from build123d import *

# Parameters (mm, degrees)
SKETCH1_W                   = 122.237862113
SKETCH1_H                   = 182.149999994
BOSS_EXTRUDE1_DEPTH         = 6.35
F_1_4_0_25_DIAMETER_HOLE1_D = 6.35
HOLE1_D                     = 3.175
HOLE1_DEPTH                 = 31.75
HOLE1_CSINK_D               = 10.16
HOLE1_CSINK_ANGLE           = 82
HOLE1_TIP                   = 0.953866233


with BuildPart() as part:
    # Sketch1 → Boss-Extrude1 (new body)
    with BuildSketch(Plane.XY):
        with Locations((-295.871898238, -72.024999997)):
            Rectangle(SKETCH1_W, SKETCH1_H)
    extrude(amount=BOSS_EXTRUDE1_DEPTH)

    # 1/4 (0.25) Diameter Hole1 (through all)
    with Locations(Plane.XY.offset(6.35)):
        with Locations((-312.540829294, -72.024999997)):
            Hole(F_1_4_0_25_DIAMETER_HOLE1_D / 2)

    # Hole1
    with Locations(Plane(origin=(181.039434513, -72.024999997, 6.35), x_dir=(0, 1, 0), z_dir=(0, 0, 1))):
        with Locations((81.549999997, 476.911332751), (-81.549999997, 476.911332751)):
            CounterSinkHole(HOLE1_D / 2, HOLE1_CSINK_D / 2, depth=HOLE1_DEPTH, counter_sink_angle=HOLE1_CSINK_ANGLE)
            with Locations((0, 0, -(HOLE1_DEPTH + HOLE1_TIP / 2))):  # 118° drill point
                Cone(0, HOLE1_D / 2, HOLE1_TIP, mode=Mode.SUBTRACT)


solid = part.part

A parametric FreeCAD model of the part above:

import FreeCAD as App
import Part
import Sketcher
Q = App.Units.Quantity

doc = App.newDocument("Part")
params = doc.addObject("Spreadsheet::Sheet", "Params")
for row, (alias, value) in enumerate([
    ("pad1_length", "0.25 in"),
    ("sketch2_diameter", "0.25 in"),
    ("hole_diameter", "0.25 in"),
    ("sketch3_diameter", "0.125 in"),
    ("hole2_diameter", "0.125 in"),
    ("hole2_depth", "1.25 in"),
    ("hole2_csink_diameter", "0.4 in"),
], start=1):
    params.set(f"A{row}", alias)
    params.set(f"B{row}", "=" + value)
    params.setAlias(f"B{row}", alias)

body = doc.addObject("PartDesign::Body", "Body")

sketch1 = body.newObject("Sketcher::SketchObject", "Sketch")
sketch1.AttachmentSupport = (doc.getObject("XY_Plane"), [""])
sketch1.MapMode = "FlatFace"
sketch1.addGeometry(Part.LineSegment(App.Vector(-356.990829, 19.05, 0), App.Vector(-356.990829, -163.1, 0)), False)
sketch1.addGeometry(Part.LineSegment(App.Vector(-356.990829, -163.1, 0), App.Vector(-234.752967, -163.1, 0)), False)
sketch1.addGeometry(Part.LineSegment(App.Vector(-234.752967, -163.1, 0), App.Vector(-234.752967, 19.05, 0)), False)
sketch1.addGeometry(Part.LineSegment(App.Vector(-234.752967, 19.05, 0), App.Vector(-356.990829, 19.05, 0)), False)
sketch1.addConstraint(Sketcher.Constraint("Coincident", 0, 2, 1, 1))
sketch1.addConstraint(Sketcher.Constraint("Coincident", 1, 2, 2, 1))
sketch1.addConstraint(Sketcher.Constraint("Coincident", 2, 2, 3, 1))
sketch1.addConstraint(Sketcher.Constraint("Coincident", 3, 2, 0, 1))
sketch1.addConstraint(Sketcher.Constraint("Vertical", 0))
sketch1.addConstraint(Sketcher.Constraint("Horizontal", 1))
sketch1.addConstraint(Sketcher.Constraint("Vertical", 2))
sketch1.addConstraint(Sketcher.Constraint("Horizontal", 3))
sketch1.addConstraint(Sketcher.Constraint("DistanceY", -1, 1, 2, 2, Q("0.75 in")))
sketch1.addConstraint(Sketcher.Constraint("DistanceY", 0, 2, 0, 1, Q("182.15 mm")))
sketch1.addConstraint(Sketcher.Constraint("DistanceX", 1, 1, 1, 2, Q("122.237862 mm")))
sketch1.addConstraint(Sketcher.Constraint("DistanceX", 0, 2, -1, 1, Q("356.990829 mm")))
pad1 = body.newObject("PartDesign::Pad", "Pad")
pad1.Profile = sketch1
pad1.setExpression("Length", "Params.pad1_length")

sketch2 = body.newObject("Sketcher::SketchObject", "Sketch001")
sketch2.AttachmentSupport = (doc.getObject("XY_Plane"), [""])
sketch2.MapMode = "FlatFace"
sketch2.AttachmentOffset = App.Placement(App.Vector(0, 0, 0.25 * 25.4), App.Rotation())
sketch2.addGeometry(Part.Circle(App.Vector(-312.540829, -72.025, 0), App.Vector(0, 0, 1), 3.175), False)
sketch2.addConstraint(Sketcher.Constraint("Diameter", 0, Q("0.25 in")))
sketch2.addConstraint(Sketcher.Constraint("DistanceY", 0, 3, -1, 1, Q("72.025 mm")))
sketch2.addConstraint(Sketcher.Constraint("DistanceX", 0, 3, -1, 1, Q("312.540829 mm")))
sketch2.setExpression("Constraints[0]", "Params.sketch2_diameter")
doc.recompute()
hole = body.newObject("PartDesign::Hole", "Hole")
hole.Profile = sketch2
hole.ThreadType = "None"
hole.setExpression("Diameter", "Params.hole_diameter")
hole.DepthType = "ThroughAll"

sketch3 = body.newObject("Sketcher::SketchObject", "Sketch002")
sketch3.AttachmentSupport = (doc.getObject("XY_Plane"), [""])
sketch3.MapMode = "FlatFace"
sketch3.AttachmentOffset = App.Placement(App.Vector(0, 0, 0.25 * 25.4), App.Rotation())
sketch3.addGeometry(Part.Circle(App.Vector(-295.871898, 9.525, 0), App.Vector(0, 0, 1), 1.5875), False)
sketch3.addGeometry(Part.Circle(App.Vector(-295.871898, -153.575, 0), App.Vector(0, 0, 1), 1.5875), False)
sketch3.addConstraint(Sketcher.Constraint("Equal", 0, 1))
sketch3.addConstraint(Sketcher.Constraint("Vertical", 0, 3, 1, 3))
sketch3.addConstraint(Sketcher.Constraint("Diameter", 0, Q("0.125 in")))
sketch3.addConstraint(Sketcher.Constraint("DistanceY", -1, 1, 0, 3, Q("0.375 in")))
sketch3.addConstraint(Sketcher.Constraint("DistanceX", 0, 3, -1, 1, Q("11.6484999 in")))
sketch3.addConstraint(Sketcher.Constraint("DistanceY", 1, 3, -1, 1, Q("153.575 mm")))
sketch3.setExpression("Constraints[2]", "Params.sketch3_diameter")
doc.recompute()
hole2 = body.newObject("PartDesign::Hole", "Hole001")
hole2.Profile = sketch3
hole2.ThreadType = "None"
hole2.setExpression("Diameter", "Params.hole2_diameter")
hole2.DepthType = "Dimension"
hole2.setExpression("Depth", "Params.hole2_depth")
hole2.DrillPoint = "Angled"
hole2.DrillPointAngle = 118
hole2.HoleCutType = "Countersink"
hole2.setExpression("HoleCutDiameter", "Params.hole2_csink_diameter")
hole2.HoleCutCountersinkAngle = 82

doc.recompute()
